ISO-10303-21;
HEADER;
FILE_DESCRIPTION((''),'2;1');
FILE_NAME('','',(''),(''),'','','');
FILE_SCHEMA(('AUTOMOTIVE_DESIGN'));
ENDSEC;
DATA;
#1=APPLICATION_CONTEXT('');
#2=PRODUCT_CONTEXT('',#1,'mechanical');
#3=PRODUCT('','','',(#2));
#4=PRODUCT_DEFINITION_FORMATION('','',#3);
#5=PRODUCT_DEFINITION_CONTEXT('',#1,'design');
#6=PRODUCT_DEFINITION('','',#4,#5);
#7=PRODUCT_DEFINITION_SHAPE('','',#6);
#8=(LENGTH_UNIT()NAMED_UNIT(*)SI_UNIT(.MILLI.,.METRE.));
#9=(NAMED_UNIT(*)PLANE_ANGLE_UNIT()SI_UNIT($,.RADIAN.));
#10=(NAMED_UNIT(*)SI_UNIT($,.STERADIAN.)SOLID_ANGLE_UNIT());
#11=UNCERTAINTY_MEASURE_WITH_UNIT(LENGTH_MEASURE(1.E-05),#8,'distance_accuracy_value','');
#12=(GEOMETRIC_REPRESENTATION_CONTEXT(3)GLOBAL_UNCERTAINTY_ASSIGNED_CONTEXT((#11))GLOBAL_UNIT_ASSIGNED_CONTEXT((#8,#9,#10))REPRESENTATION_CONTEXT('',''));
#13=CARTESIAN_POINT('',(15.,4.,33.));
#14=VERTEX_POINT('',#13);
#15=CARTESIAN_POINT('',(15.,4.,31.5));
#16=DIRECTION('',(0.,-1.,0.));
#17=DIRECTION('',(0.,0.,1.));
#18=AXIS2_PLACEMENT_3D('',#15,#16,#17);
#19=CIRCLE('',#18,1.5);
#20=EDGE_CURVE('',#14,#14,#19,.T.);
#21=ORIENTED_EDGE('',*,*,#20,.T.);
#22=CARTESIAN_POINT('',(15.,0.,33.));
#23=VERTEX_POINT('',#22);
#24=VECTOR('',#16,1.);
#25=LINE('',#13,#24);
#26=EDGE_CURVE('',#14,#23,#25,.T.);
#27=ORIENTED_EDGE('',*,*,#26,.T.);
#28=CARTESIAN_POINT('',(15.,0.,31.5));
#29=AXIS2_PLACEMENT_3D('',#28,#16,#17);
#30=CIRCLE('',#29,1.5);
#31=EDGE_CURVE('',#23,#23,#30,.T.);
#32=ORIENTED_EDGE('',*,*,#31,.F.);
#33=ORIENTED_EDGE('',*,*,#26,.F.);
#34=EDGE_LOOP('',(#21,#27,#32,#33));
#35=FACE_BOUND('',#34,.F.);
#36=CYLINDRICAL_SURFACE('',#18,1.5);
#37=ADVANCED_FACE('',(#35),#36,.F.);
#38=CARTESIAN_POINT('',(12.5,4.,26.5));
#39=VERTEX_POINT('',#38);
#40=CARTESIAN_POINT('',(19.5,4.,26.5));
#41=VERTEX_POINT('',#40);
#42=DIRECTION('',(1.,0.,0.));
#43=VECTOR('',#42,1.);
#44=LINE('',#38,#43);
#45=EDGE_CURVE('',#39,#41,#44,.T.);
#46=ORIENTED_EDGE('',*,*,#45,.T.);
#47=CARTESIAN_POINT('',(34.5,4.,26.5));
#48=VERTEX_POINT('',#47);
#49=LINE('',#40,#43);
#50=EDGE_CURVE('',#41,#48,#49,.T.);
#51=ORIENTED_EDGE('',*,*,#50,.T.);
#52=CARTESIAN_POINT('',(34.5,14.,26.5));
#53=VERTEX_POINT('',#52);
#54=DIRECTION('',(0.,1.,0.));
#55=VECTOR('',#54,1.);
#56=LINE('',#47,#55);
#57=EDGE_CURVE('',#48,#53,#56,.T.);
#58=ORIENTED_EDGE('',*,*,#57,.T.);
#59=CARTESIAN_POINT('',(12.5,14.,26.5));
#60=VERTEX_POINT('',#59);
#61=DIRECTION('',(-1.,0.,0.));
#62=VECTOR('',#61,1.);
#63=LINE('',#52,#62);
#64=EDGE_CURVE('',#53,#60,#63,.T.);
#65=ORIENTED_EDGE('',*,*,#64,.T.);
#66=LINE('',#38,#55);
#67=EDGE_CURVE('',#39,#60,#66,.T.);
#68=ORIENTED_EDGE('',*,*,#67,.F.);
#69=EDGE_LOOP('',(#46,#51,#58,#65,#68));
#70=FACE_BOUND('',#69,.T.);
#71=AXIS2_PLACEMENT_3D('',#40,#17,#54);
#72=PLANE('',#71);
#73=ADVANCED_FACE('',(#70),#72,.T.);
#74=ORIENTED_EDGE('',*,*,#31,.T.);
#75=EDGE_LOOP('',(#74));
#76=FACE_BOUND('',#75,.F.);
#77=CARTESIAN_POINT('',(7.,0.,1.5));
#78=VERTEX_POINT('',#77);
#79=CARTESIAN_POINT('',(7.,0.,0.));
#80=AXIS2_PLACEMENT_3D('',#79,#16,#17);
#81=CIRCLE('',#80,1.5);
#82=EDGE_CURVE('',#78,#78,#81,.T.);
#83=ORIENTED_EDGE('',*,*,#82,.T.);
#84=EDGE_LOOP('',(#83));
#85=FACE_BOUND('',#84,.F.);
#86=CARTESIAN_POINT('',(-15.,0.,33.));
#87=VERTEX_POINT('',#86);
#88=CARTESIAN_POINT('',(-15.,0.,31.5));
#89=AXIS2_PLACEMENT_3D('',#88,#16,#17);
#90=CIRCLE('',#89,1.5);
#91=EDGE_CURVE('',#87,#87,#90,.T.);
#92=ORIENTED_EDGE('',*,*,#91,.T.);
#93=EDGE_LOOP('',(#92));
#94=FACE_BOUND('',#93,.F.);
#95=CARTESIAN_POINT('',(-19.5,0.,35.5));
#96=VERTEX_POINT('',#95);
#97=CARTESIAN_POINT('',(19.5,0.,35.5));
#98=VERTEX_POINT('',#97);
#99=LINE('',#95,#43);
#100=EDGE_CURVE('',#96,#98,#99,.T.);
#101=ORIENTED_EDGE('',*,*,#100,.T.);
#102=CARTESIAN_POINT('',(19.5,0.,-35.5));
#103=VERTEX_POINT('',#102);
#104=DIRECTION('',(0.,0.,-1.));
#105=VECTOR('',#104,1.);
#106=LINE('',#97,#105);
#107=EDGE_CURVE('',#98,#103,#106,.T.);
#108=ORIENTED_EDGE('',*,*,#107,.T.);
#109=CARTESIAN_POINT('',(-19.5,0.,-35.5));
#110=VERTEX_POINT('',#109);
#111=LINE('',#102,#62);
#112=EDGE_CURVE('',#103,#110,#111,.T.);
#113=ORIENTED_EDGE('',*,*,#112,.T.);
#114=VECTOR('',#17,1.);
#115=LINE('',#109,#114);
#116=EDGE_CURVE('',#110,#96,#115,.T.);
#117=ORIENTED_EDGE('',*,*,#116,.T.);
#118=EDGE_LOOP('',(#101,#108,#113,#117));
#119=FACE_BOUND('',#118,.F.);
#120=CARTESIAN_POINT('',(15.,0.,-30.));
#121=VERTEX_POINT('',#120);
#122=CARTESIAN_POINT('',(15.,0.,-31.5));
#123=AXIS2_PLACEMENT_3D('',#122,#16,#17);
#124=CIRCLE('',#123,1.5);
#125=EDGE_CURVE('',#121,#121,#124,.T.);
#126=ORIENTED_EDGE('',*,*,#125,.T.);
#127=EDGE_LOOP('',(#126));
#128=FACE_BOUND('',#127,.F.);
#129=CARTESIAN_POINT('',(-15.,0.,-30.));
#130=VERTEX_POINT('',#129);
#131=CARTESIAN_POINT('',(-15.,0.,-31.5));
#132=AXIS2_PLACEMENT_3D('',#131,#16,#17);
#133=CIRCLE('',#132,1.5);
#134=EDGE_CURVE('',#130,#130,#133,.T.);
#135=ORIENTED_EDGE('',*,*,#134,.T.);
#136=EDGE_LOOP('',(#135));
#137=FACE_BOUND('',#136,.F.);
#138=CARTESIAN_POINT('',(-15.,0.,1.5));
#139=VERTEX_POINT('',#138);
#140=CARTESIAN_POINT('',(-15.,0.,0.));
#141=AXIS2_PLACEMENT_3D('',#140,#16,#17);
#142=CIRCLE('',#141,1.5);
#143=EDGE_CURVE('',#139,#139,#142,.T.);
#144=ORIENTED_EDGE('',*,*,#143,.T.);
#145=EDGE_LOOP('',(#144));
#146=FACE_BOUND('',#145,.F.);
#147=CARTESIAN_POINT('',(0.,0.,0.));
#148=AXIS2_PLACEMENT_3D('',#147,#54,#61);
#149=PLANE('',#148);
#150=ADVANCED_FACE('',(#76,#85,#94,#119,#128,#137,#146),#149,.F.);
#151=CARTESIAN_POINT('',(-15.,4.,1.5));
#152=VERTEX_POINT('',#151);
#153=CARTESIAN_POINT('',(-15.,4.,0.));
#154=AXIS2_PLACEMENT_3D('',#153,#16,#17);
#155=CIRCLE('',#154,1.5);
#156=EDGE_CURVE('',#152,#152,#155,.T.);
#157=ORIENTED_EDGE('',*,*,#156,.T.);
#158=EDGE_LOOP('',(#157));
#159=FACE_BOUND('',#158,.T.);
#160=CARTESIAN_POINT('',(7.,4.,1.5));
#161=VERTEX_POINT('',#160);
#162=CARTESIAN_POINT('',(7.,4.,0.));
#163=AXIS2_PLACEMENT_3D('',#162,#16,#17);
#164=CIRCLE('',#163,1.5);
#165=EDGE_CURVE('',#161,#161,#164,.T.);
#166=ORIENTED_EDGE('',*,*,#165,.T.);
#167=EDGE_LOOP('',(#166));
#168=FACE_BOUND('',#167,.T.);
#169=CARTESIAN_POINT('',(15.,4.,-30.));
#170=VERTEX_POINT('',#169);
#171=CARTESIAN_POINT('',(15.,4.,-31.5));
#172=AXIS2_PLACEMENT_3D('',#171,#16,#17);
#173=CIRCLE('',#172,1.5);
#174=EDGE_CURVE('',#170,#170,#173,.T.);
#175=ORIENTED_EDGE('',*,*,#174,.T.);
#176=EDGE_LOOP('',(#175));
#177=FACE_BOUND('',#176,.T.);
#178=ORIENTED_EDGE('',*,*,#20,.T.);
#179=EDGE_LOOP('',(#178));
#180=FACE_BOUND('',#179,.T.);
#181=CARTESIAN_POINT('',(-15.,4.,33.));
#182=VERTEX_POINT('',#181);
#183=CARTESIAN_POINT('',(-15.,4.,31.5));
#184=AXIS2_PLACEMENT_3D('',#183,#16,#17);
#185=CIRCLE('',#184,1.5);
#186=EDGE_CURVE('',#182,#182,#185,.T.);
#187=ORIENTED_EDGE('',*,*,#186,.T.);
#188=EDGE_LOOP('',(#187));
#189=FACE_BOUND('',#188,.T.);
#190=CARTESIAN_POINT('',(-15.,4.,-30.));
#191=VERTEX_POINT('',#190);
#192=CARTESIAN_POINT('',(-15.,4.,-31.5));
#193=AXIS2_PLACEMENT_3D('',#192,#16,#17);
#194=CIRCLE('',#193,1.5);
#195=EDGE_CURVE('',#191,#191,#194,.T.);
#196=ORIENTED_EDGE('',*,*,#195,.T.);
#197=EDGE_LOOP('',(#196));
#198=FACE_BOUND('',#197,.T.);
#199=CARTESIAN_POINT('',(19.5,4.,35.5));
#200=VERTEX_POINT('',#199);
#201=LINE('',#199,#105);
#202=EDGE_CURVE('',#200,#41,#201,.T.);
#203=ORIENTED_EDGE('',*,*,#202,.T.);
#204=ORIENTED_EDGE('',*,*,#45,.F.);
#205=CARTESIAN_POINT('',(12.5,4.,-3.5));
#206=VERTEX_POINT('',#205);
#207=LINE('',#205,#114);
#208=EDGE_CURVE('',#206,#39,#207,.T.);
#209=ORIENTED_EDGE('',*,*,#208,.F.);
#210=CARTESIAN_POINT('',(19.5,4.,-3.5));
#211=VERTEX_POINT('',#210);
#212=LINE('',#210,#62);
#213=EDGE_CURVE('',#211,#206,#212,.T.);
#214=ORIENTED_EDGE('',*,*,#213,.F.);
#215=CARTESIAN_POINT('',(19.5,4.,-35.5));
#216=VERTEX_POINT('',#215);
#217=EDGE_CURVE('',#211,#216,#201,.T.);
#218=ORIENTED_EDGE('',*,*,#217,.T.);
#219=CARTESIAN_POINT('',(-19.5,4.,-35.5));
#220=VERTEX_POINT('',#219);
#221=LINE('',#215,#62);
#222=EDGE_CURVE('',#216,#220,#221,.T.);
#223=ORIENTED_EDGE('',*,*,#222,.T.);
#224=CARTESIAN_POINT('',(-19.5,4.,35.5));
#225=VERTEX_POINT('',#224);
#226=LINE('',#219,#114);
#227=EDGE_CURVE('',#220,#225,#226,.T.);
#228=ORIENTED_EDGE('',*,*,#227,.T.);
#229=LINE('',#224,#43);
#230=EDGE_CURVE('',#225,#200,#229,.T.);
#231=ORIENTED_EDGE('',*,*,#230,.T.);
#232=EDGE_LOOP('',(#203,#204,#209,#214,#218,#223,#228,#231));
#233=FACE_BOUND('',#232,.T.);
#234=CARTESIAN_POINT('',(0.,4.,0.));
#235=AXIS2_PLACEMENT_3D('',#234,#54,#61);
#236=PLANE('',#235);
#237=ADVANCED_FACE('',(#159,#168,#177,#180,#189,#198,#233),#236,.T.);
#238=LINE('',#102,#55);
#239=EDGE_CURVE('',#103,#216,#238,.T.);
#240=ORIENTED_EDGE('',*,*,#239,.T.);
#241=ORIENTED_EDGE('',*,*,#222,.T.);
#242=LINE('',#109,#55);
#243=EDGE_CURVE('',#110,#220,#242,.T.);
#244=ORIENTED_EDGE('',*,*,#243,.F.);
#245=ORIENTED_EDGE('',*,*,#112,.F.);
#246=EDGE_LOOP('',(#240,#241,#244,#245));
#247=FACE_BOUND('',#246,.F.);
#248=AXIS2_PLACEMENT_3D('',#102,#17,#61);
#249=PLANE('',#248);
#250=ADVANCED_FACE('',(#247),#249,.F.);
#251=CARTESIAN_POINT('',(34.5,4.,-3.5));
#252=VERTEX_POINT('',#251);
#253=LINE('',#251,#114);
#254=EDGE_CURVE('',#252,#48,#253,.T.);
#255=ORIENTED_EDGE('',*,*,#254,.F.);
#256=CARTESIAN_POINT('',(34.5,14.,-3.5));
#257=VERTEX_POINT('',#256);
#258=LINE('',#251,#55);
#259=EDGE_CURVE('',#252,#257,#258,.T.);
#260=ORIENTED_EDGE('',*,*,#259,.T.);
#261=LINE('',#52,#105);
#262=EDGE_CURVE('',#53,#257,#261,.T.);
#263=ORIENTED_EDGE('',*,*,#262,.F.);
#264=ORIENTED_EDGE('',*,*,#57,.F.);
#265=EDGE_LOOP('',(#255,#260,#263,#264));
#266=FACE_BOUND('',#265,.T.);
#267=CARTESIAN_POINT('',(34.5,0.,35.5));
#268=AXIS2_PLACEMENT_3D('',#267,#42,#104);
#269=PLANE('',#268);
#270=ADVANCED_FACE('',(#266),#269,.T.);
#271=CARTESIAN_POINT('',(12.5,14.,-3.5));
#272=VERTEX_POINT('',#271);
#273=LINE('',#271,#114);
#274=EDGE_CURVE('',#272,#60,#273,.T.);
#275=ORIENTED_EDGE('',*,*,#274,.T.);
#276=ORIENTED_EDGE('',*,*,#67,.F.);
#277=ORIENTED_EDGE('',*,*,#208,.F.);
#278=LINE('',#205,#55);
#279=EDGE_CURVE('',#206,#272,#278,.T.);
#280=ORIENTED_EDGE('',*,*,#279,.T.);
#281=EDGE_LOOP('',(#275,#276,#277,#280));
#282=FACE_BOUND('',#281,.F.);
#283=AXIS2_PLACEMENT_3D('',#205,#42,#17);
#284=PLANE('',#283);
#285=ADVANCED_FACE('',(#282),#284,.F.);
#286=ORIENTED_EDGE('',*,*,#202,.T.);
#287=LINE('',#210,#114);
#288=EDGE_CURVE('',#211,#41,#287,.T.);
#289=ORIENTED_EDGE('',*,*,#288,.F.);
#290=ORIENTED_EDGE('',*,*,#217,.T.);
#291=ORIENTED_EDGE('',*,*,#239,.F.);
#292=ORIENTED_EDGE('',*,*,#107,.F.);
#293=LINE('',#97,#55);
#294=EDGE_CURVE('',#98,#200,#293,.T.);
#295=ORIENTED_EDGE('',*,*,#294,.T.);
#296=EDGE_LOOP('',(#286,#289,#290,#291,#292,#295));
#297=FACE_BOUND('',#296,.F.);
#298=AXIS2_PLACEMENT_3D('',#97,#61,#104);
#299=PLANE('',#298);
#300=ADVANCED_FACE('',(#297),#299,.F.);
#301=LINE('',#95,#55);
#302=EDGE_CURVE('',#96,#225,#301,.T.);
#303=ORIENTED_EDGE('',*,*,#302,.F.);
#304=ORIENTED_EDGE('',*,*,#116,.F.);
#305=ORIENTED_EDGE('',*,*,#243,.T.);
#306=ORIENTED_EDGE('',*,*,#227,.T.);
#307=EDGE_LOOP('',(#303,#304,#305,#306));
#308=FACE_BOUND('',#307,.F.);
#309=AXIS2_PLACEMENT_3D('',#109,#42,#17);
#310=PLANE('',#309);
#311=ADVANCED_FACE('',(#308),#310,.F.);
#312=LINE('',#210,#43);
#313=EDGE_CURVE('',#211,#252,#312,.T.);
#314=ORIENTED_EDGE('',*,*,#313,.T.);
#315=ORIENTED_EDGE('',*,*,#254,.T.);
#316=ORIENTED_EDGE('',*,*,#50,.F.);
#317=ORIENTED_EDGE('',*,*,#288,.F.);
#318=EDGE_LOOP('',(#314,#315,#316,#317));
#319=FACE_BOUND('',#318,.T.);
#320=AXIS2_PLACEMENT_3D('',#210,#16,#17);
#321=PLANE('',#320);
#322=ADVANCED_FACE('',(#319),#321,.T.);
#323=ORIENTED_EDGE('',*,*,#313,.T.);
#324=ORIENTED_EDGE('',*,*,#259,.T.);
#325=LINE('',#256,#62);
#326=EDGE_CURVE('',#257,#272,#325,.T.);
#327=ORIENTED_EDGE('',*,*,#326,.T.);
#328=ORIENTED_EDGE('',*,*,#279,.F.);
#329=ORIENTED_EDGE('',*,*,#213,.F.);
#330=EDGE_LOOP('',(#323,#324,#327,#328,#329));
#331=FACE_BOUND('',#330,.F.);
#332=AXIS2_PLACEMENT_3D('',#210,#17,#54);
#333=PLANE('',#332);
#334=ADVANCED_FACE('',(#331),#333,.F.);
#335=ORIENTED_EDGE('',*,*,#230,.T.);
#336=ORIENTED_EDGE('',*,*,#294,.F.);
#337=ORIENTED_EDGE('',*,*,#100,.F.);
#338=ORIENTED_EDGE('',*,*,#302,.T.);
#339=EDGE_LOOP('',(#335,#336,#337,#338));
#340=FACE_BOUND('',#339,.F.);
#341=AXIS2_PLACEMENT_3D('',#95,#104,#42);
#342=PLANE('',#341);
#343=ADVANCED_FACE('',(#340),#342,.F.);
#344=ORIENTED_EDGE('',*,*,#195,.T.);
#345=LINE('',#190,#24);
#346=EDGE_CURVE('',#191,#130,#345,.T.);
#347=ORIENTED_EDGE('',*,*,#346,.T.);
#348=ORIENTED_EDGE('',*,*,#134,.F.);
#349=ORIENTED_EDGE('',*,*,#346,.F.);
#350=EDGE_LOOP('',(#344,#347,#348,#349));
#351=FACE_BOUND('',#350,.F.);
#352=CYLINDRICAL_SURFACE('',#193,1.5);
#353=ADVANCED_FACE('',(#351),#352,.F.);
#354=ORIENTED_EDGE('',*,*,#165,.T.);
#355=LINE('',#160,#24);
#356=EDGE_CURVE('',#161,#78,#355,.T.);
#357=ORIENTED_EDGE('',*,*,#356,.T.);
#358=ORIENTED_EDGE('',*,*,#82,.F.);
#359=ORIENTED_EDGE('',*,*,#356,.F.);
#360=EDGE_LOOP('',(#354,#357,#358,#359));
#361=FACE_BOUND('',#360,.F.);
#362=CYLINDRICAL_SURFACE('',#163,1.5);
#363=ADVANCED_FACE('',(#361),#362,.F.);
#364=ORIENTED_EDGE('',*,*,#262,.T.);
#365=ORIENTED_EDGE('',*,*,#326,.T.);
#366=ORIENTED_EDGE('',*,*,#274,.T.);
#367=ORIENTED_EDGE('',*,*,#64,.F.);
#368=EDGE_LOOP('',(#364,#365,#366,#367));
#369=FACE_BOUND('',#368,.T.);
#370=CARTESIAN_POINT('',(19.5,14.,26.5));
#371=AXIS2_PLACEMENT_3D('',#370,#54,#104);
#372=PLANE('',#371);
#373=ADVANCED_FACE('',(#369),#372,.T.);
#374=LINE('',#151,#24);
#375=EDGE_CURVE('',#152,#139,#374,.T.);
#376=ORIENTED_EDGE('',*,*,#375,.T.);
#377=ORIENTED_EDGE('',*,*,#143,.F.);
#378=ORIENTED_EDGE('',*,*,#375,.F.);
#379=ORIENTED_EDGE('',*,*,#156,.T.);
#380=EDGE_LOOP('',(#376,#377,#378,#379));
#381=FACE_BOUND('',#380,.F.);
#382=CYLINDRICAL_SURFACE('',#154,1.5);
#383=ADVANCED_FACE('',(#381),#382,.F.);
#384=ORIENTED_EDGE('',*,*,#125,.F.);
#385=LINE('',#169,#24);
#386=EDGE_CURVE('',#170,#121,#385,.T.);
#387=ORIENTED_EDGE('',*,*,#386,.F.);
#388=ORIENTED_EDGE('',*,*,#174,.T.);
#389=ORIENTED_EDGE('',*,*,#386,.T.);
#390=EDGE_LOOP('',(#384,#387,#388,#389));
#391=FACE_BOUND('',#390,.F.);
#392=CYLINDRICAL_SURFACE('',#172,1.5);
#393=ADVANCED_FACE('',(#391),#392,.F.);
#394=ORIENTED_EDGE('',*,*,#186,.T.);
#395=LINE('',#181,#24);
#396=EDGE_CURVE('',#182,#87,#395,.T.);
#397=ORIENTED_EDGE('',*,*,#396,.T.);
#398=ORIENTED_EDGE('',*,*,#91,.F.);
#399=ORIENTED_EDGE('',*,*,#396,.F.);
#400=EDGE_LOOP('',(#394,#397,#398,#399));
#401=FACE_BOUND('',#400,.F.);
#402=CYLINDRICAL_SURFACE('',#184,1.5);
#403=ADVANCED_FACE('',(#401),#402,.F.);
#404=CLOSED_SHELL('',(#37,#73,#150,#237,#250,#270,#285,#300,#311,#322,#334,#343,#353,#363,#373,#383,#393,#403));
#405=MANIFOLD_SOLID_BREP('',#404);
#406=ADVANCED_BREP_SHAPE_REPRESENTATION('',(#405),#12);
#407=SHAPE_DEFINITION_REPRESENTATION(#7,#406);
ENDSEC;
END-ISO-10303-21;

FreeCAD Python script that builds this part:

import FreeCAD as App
import Part
import Sketcher

V = App.Vector
Q = App.Units.Quantity


def add_polygon(sketch, points):
    """Adds a closed chain of lines whose ends are joined by coincident constraints."""
    first, n = sketch.GeometryCount, len(points)
    for a, b in zip(points, points[1:] + points[:1]):
        sketch.addGeometry(Part.LineSegment(App.Vector(*a, 0), App.Vector(*b, 0)), False)
    for i in range(n):
        sketch.addConstraint(Sketcher.Constraint("Coincident", first + i, 2, first + (i + 1) % n, 1))

doc = App.newDocument("Part")
body = doc.addObject("PartDesign::Body", "Body")

# Sketch on XZ plane
sketch1 = body.newObject("Sketcher::SketchObject", "Sketch")
sketch1.AttachmentSupport = (doc.getObject("XZ_Plane"), [""])
sketch1.MapMode = "FlatFace"
add_polygon(sketch1, [(20, 36), (20, -36), (-20, -36), (-20, 36)])  # lines 0-3
sketch1.addConstraint([
    Sketcher.Constraint("Vertical", 0),
    Sketcher.Constraint("Horizontal", 1),
    Sketcher.Constraint("Vertical", 2),
    Sketcher.Constraint("Horizontal", 3),
    Sketcher.Constraint("Symmetric", 0, 2, 2, 2, -1, 1),
    Sketcher.Constraint("DistanceX", 1, 2, 1, 1, Q("39 mm")),
    Sketcher.Constraint("DistanceY", 0, 2, 0, 1, Q("71 mm")),
])
pad1 = body.newObject("PartDesign::Pad", "Pad")
pad1.Profile = sketch1
pad1.Length = 4
pad1.Reversed = True

# Sketch on XZ plane
sketch2 = body.newObject("Sketcher::SketchObject", "Sketch001")
sketch2.AttachmentSupport = (doc.getObject("XZ_Plane"), [""])
sketch2.MapMode = "FlatFace"
sketch2.AttachmentOffset = App.Placement(V(0, 0, -4), App.Rotation())
sketch2.addGeometry([
    Part.Circle(V(-15, 31.5, 0), V(0, 0, 1), 1.5),  # 0
    Part.Circle(V(-15, -31.5, 0), V(0, 0, 1), 1.5),  # 1
    Part.Circle(V(15, -31.5, 0), V(0, 0, 1), 1.5),  # 2
    Part.Circle(V(15, 31.5, 0), V(0, 0, 1), 1.5),  # 3
    Part.Circle(V(7, 0, 0), V(0, 0, 1), 1.5),  # 4
    Part.Circle(V(-15, 0, 0), V(0, 0, 1), 1.5),  # 5
], False)
sketch2.addConstraint([
    Sketcher.Constraint("Equal", 0, 1),
    Sketcher.Constraint("Equal", 1, 2),
    Sketcher.Constraint("Equal", 2, 3),
    Sketcher.Constraint("Equal", 3, 4),
    Sketcher.Constraint("Equal", 4, 5),
    Sketcher.Constraint("Symmetric", 0, 3, 2, 3, -1, 1),
    Sketcher.Constraint("Symmetric", 1, 3, 3, 3, -1, 1),
    Sketcher.Constraint("Symmetric", 1, 3, 2, 3, -2),
    Sketcher.Constraint("PointOnObject", 4, 3, -1),
    Sketcher.Constraint("PointOnObject", 5, 3, -1),
    Sketcher.Constraint("Vertical", 1, 3, 5, 3),
    Sketcher.Constraint("Diameter", 0, Q("3 mm")),
    Sketcher.Constraint("DistanceX", 0, 3, -1, 1, Q("15 mm")),
    Sketcher.Constraint("DistanceX", -1, 1, 4, 3, Q("7 mm")),
    Sketcher.Constraint("DistanceY", 1, 3, 0, 3, Q("63 mm")),
])
doc.recompute()
hole = body.newObject("PartDesign::Hole", "Hole")
hole.Profile = sketch2
hole.ThreadType = "None"
hole.Diameter = 3
hole.DepthType = "ThroughAll"
hole.Reversed = True

# Sketch on XZ plane
sketch3 = body.newObject("Sketcher::SketchObject", "Sketch002")
sketch3.AttachmentSupport = (doc.getObject("XZ_Plane"), [""])
sketch3.MapMode = "FlatFace"
sketch3.AttachmentOffset = App.Placement(V(0, 0, -4), App.Rotation())
add_polygon(sketch3, [(20, 26), (20, -4), (12, -4), (12, 26)])  # lines 0-3
sketch3.addConstraint([
    Sketcher.Constraint("Vertical", 0),
    Sketcher.Constraint("Horizontal", 1),
    Sketcher.Constraint("Vertical", 2),
    Sketcher.Constraint("Horizontal", 3),
    Sketcher.Constraint("DistanceX", 1, 2, 1, 1, Q("7 mm")),
    Sketcher.Constraint("DistanceY", 0, 2, 0, 1, Q("30 mm")),
    Sketcher.Constraint("DistanceX", -1, 1, 0, 2, Q("19.5 mm")),
    Sketcher.Constraint("DistanceY", 0, 2, -1, 1, Q("3.5 mm")),
])
pad2 = body.newObject("PartDesign::Pad", "Pad001")
pad2.Profile = sketch3
pad2.Length = 10
pad2.Reversed = True

# Sketch on YZ plane
sketch4 = body.newObject("Sketcher::SketchObject", "Sketch003")
sketch4.AttachmentSupport = (doc.getObject("YZ_Plane"), [""])
sketch4.MapMode = "FlatFace"
sketch4.AttachmentOffset = App.Placement(V(0, 0, 19.5), App.Rotation())
add_polygon(sketch4, [(14, 26), (4, 26), (4, -4), (14, -4)])  # lines 0-3
sketch4.addConstraint([
    Sketcher.Constraint("Horizontal", 0),
    Sketcher.Constraint("Vertical", 1),
    Sketcher.Constraint("Horizontal", 2),
    Sketcher.Constraint("Vertical", 3),
    Sketcher.Constraint("DistanceX", 0, 2, 0, 1, Q("10 mm")),
    Sketcher.Constraint("DistanceY", 1, 2, 1, 1, Q("30 mm")),
    Sketcher.Constraint("DistanceX", -1, 1, 0, 2, Q("4 mm")),
    Sketcher.Constraint("DistanceY", -1, 1, 0, 2, Q("26.5 mm")),
])
pad3 = body.newObject("PartDesign::Pad", "Pad002")
pad3.Profile = sketch4
pad3.Length = 15

doc.recompute()
